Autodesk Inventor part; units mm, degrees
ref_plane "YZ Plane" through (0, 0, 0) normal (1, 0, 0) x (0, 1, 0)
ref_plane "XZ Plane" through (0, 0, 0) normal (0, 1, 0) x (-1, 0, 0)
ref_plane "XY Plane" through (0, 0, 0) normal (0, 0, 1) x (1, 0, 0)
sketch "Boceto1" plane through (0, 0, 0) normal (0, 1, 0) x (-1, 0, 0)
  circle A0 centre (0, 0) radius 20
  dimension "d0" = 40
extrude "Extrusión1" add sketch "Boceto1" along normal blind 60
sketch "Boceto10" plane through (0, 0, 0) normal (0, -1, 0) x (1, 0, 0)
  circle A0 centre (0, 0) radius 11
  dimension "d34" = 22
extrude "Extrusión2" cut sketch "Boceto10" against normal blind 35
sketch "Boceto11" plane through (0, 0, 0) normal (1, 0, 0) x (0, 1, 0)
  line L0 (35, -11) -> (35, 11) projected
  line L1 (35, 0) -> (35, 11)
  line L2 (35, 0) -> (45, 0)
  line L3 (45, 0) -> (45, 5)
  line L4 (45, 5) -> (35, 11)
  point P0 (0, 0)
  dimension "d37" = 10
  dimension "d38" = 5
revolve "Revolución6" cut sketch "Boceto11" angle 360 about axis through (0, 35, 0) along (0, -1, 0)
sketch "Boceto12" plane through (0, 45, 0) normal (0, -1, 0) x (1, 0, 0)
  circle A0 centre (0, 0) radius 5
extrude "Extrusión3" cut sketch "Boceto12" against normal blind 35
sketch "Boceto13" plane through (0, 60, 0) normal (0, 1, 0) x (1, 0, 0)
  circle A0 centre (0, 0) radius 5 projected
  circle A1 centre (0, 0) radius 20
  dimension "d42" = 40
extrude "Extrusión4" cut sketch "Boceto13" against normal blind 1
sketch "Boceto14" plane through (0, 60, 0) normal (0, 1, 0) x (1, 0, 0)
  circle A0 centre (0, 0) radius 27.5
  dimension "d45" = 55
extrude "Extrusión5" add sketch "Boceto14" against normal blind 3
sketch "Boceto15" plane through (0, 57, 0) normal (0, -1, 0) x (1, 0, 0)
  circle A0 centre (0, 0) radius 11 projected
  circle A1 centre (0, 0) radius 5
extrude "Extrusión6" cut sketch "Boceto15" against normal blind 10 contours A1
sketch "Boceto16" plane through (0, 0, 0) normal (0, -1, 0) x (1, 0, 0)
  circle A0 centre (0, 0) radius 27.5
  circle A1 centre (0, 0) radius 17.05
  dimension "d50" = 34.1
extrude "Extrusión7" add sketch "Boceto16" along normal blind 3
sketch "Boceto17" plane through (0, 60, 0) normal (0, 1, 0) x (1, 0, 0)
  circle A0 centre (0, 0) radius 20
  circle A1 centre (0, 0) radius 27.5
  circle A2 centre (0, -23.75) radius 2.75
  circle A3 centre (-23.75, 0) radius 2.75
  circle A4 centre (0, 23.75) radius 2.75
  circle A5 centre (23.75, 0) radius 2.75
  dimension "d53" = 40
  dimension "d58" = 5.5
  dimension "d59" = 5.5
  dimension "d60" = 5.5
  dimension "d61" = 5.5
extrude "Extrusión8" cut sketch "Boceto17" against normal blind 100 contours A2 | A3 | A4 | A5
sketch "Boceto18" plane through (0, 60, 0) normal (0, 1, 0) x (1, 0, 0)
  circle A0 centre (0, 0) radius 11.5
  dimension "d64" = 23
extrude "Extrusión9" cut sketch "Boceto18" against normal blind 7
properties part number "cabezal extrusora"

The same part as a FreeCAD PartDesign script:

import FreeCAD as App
import Part
import Sketcher

V = App.Vector
Q = App.Units.Quantity

doc = App.newDocument("Part")
body = doc.addObject("PartDesign::Body", "Body")

# Sketch on XZ plane
sketch1 = body.newObject("Sketcher::SketchObject", "Sketch")
sketch1.AttachmentSupport = (doc.getObject("XZ_Plane"), [""])
sketch1.MapMode = "FlatFace"
sketch1.addGeometry(Part.Circle(V(0, 0, 0), V(0, 0, 1), 20), False)
sketch1.addConstraint([
    Sketcher.Constraint("Coincident", 0, 3, -1, 1),
    Sketcher.Constraint("Diameter", 0, Q("40 mm")),
])
pad1 = body.newObject("PartDesign::Pad", "Pad")
pad1.Profile = sketch1
pad1.Length = 60
pad1.Reversed = True

# Sketch on XZ plane
sketch2 = body.newObject("Sketcher::SketchObject", "Sketch001")
sketch2.AttachmentSupport = (doc.getObject("XZ_Plane"), [""])
sketch2.MapMode = "FlatFace"
sketch2.addGeometry(Part.Circle(V(0, 0, 0), V(0, 0, 1), 11), False)
sketch2.addConstraint([
    Sketcher.Constraint("Coincident", 0, 3, -1, 1),
    Sketcher.Constraint("Diameter", 0, Q("22 mm")),
])
pocket1 = body.newObject("PartDesign::Pocket", "Pocket")
pocket1.Profile = sketch2
pocket1.Length = 35

# Sketch on YZ plane
sketch3 = body.newObject("Sketcher::SketchObject", "Sketch002")
sketch3.AttachmentSupport = (doc.getObject("YZ_Plane"), [""])
sketch3.MapMode = "FlatFace"
sketch3.addGeometry([
    Part.LineSegment(V(35, 11, 0), V(35, 0, 0)),
    Part.LineSegment(V(35, 0, 0), V(45, 0, 0)),
    Part.LineSegment(V(45, 0, 0), V(45, 5, 0)),
    Part.LineSegment(V(45, 5, 0), V(35, 11, 0)),
], False)
sketch3.addConstraint([
    Sketcher.Constraint("Coincident", 0, 2, 1, 1),
    Sketcher.Constraint("Coincident", 1, 2, 2, 1),
    Sketcher.Constraint("Coincident", 2, 2, 3, 1),
    Sketcher.Constraint("Coincident", 3, 2, 0, 1),
    Sketcher.Constraint("Vertical", 0),
    Sketcher.Constraint("Horizontal", 1),
    Sketcher.Constraint("Vertical", 2),
    Sketcher.Constraint("PointOnObject", 0, 2, -1),
    Sketcher.Constraint("DistanceX", 1, 1, 1, 2, Q("10 mm")),
    Sketcher.Constraint("DistanceY", 2, 1, 2, 2, Q("5 mm")),
    Sketcher.Constraint("DistanceY", 0, 2, 0, 1, Q("11 mm")),
    Sketcher.Constraint("DistanceX", -1, 1, 0, 2, Q("35 mm")),
])
groove = body.newObject("PartDesign::Groove", "Groove")
groove.Profile = sketch3
groove.ReferenceAxis = (sketch3, ["H_Axis"])
groove.Angle = 360

# Sketch on XZ plane
sketch4 = body.newObject("Sketcher::SketchObject", "Sketch003")
sketch4.AttachmentSupport = (doc.getObject("XZ_Plane"), [""])
sketch4.MapMode = "FlatFace"
sketch4.AttachmentOffset = App.Placement(V(0, 0, -45), App.Rotation())
sketch4.addGeometry(Part.Circle(V(0, 0, 0), V(0, 0, 1), 5), False)
sketch4.addConstraint([
    Sketcher.Constraint("Coincident", 0, 3, -1, 1),
    Sketcher.Constraint("Diameter", 0, Q("10 mm")),
])
pocket2 = body.newObject("PartDesign::Pocket", "Pocket001")
pocket2.Profile = sketch4
pocket2.Length = 35

# Sketch on XZ plane
sketch5 = body.newObject("Sketcher::SketchObject", "Sketch004")
sketch5.AttachmentSupport = (doc.getObject("XZ_Plane"), [""])
sketch5.MapMode = "FlatFace"
sketch5.AttachmentOffset = App.Placement(V(0, 0, -60), App.Rotation())
sketch5.addGeometry([
    Part.Circle(V(0, 0, 0), V(0, 0, 1), 20),
    Part.Circle(V(0, 0, 0), V(0, 0, 1), 5),
], False)
sketch5.addConstraint([
    Sketcher.Constraint("Coincident", 0, 3, -1, 1),
    Sketcher.Constraint("Coincident", 1, 3, -1, 1),
    Sketcher.Constraint("Diameter", 0, Q("40 mm")),
    Sketcher.Constraint("Diameter", 1, Q("10 mm")),
])
pocket3 = body.newObject("PartDesign::Pocket", "Pocket002")
pocket3.Profile = sketch5
pocket3.Length = 1
pocket3.Reversed = True

# Sketch on XZ plane
sketch6 = body.newObject("Sketcher::SketchObject", "Sketch005")
sketch6.AttachmentSupport = (doc.getObject("XZ_Plane"), [""])
sketch6.MapMode = "FlatFace"
sketch6.AttachmentOffset = App.Placement(V(0, 0, -60), App.Rotation())
sketch6.addGeometry(Part.Circle(V(0, 0, 0), V(0, 0, 1), 28), False)
sketch6.addConstraint([
    Sketcher.Constraint("Coincident", 0, 3, -1, 1),
    Sketcher.Constraint("Diameter", 0, Q("55 mm")),
])
pad2 = body.newObject("PartDesign::Pad", "Pad001")
pad2.Profile = sketch6
pad2.Length = 3

# Sketch on XZ plane
sketch7 = body.newObject("Sketcher::SketchObject", "Sketch006")
sketch7.AttachmentSupport = (doc.getObject("XZ_Plane"), [""])
sketch7.MapMode = "FlatFace"
sketch7.AttachmentOffset = App.Placement(V(0, 0, -57), App.Rotation())
sketch7.addGeometry(Part.Circle(V(0, 0, 0), V(0, 0, 1), 5), False)
sketch7.addConstraint([
    Sketcher.Constraint("Coincident", 0, 3, -1, 1),
    Sketcher.Constraint("Diameter", 0, Q("10 mm")),
])
pocket4 = body.newObject("PartDesign::Pocket", "Pocket003")
pocket4.Profile = sketch7
pocket4.Length = 10

# Sketch on XZ plane
sketch8 = body.newObject("Sketcher::SketchObject", "Sketch007")
sketch8.AttachmentSupport = (doc.getObject("XZ_Plane"), [""])
sketch8.MapMode = "FlatFace"
sketch8.addGeometry([
    Part.Circle(V(0, 0, 0), V(0, 0, 1), 28),
    Part.Circle(V(0, 0, 0), V(0, 0, 1), 17),
], False)
sketch8.addConstraint([
    Sketcher.Constraint("Coincident", 0, 3, -1, 1),
    Sketcher.Constraint("Coincident", 1, 3, -1, 1),
    Sketcher.Constraint("Diameter", 1, Q("34.1 mm")),
    Sketcher.Constraint("Diameter", 0, Q("55 mm")),
])
pad3 = body.newObject("PartDesign::Pad", "Pad002")
pad3.Profile = sketch8
pad3.Length = 3

# Sketch on XZ plane
sketch9 = body.newObject("Sketcher::SketchObject", "Sketch008")
sketch9.AttachmentSupport = (doc.getObject("XZ_Plane"), [""])
sketch9.MapMode = "FlatFace"
sketch9.AttachmentOffset = App.Placement(V(0, 0, -60), App.Rotation())
sketch9.addGeometry([
    Part.Circle(V(0, 23.8, 0), V(0, 0, 1), 2.8),
    Part.Circle(V(-23.8, 0, 0), V(0, 0, 1), 2.8),
    Part.Circle(V(0, -23.8, 0), V(0, 0, 1), 2.8),
    Part.Circle(V(23.8, 0, 0), V(0, 0, 1), 2.8),
], False)
sketch9.addConstraint([
    Sketcher.Constraint("Equal", 0, 1),
    Sketcher.Constraint("Equal", 1, 2),
    Sketcher.Constraint("Equal", 2, 3),
    Sketcher.Constraint("Symmetric", 0, 3, 2, 3, -1, 1),
    Sketcher.Constraint("Symmetric", 1, 3, 3, 3, -1, 1),
    Sketcher.Constraint("PointOnObject", 0, 3, -2),
    Sketcher.Constraint("PointOnObject", 1, 3, -1),
    Sketcher.Constraint("Diameter", 0, Q("5.5 mm")),
    Sketcher.Constraint("DistanceY", 2, 3, 0, 3, Q("47.5 mm")),
    Sketcher.Constraint("DistanceX", 1, 3, 3, 3, Q("47.5 mm")),
])
pocket5 = body.newObject("PartDesign::Pocket", "Pocket004")
pocket5.Profile = sketch9
pocket5.Length = 100
pocket5.Reversed = True

# Sketch on XZ plane
sketch10 = body.newObject("Sketcher::SketchObject", "Sketch009")
sketch10.AttachmentSupport = (doc.getObject("XZ_Plane"), [""])
sketch10.MapMode = "FlatFace"
sketch10.AttachmentOffset = App.Placement(V(0, 0, -60), App.Rotation())
sketch10.addGeometry(Part.Circle(V(0, 0, 0), V(0, 0, 1), 12), False)
sketch10.addConstraint([
    Sketcher.Constraint("Coincident", 0, 3, -1, 1),
    Sketcher.Constraint("Diameter", 0, Q("23 mm")),
])
pocket6 = body.newObject("PartDesign::Pocket", "Pocket005")
pocket6.Profile = sketch10
pocket6.Length = 7
pocket6.Reversed = True

doc.recompute()
